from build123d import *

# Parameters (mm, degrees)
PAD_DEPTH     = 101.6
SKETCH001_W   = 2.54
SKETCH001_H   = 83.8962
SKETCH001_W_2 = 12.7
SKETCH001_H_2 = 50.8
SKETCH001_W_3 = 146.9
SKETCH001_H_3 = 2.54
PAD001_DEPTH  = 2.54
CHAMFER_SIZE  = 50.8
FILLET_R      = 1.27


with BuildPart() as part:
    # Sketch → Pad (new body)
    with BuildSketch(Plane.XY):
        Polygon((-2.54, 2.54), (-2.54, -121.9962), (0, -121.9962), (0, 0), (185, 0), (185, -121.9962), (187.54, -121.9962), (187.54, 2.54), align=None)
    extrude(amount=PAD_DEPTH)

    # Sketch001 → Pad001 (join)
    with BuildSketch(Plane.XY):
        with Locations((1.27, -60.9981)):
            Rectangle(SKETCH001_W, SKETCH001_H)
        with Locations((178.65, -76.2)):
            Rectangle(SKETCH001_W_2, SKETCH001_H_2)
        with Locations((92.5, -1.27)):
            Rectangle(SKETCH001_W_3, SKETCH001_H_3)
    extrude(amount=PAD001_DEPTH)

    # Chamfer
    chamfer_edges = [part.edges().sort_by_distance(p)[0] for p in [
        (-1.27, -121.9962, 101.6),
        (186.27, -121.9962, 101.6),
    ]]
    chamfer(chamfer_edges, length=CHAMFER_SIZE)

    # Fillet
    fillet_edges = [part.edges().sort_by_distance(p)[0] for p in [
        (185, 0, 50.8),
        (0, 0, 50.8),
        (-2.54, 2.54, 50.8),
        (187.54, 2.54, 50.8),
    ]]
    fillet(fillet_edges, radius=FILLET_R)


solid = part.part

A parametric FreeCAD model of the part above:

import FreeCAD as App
import Part
import Sketcher
Q = App.Units.Quantity


def edges_at(feature, points):
    """Names of the edges that pass closest to the given points."""
    edges = feature.Shape.Edges
    near = lambda p: min(range(len(edges)), key=lambda i: edges[i].distToShape(Part.Vertex(*p))[0])
    return sorted({f"Edge{near(p) + 1}" for p in points})

doc = App.newDocument("Part")
body = doc.addObject("PartDesign::Body", "Body")

# Sketch on XY plane
sketch1 = body.newObject("Sketcher::SketchObject", "Sketch")
sketch1.AttachmentSupport = (doc.getObject("XY_Plane"), [""])
sketch1.MapMode = "FlatFace"
sketch1.addGeometry([
    Part.LineSegment(App.Vector(-2.5, 2.5, 0), App.Vector(-2.5, -122, 0)),  # 0
    Part.LineSegment(App.Vector(-2.5, -122, 0), App.Vector(0, -122, 0)),  # 1
    Part.LineSegment(App.Vector(0, -122, 0), App.Vector(0, 0, 0)),  # 2
    Part.LineSegment(App.Vector(0, 0, 0), App.Vector(185, 0, 0)),  # 3
    Part.LineSegment(App.Vector(185, 0, 0), App.Vector(185, -122, 0)),  # 4
    Part.LineSegment(App.Vector(185, -122, 0), App.Vector(187.5, -122, 0)),  # 5
    Part.LineSegment(App.Vector(187.5, -122, 0), App.Vector(187.5, 2.5, 0)),  # 6
    Part.LineSegment(App.Vector(187.5, 2.5, 0), App.Vector(-2.5, 2.5, 0)),  # 7
], False)
sketch1.addConstraint([
    Sketcher.Constraint("Coincident", 0, 2, 1, 1),
    Sketcher.Constraint("Coincident", 1, 2, 2, 1),
    Sketcher.Constraint("Coincident", 2, 2, 3, 1),
    Sketcher.Constraint("Coincident", 3, 2, 4, 1),
    Sketcher.Constraint("Coincident", 4, 2, 5, 1),
    Sketcher.Constraint("Coincident", 5, 2, 6, 1),
    Sketcher.Constraint("Coincident", 6, 2, 7, 1),
    Sketcher.Constraint("Coincident", 7, 2, 0, 1),
    Sketcher.Constraint("Vertical", 0),
    Sketcher.Constraint("Horizontal", 1),
    Sketcher.Constraint("Vertical", 2),
    Sketcher.Constraint("Horizontal", 3),
    Sketcher.Constraint("Vertical", 4),
    Sketcher.Constraint("Horizontal", 5),
    Sketcher.Constraint("Vertical", 6),
    Sketcher.Constraint("Horizontal", 7),
    Sketcher.Constraint("Coincident", 2, 2, -1, 1),
    Sketcher.Constraint("Horizontal", 1, 2, 4, 2),
    Sketcher.Constraint("Equal", 1, 5),
    Sketcher.Constraint("DistanceX", 1, 1, 1, 2, Q("0.1 in")),
    Sketcher.Constraint("DistanceY", -1, 1, 6, 2, Q("0.1 in")),
    Sketcher.Constraint("DistanceY", 0, 2, 0, 1, Q("4.903 in")),
    Sketcher.Constraint("DistanceX", 3, 1, 3, 2, 185.0),
])
pad1 = body.newObject("PartDesign::Pad", "Pad")
pad1.Profile = sketch1
pad1.Length = Q("4 in")

# Sketch on XY plane
sketch2 = body.newObject("Sketcher::SketchObject", "Sketch001")
sketch2.AttachmentSupport = (doc.getObject("XY_Plane"), [""])
sketch2.MapMode = "FlatFace"
sketch2.addGeometry([
    Part.LineSegment(App.Vector(0, -19.1, 0), App.Vector(0, -102.9, 0)),  # 0
    Part.LineSegment(App.Vector(0, -102.9, 0), App.Vector(2.5, -102.9, 0)),  # 1
    Part.LineSegment(App.Vector(2.5, -102.9, 0), App.Vector(2.5, -19.1, 0)),  # 2
    Part.LineSegment(App.Vector(2.5, -19.1, 0), App.Vector(0, -19.1, 0)),  # 3
    Part.LineSegment(App.Vector(172.3, -50.8, 0), App.Vector(172.3, -101.6, 0)),  # 4
    Part.LineSegment(App.Vector(172.3, -101.6, 0), App.Vector(185, -101.6, 0)),  # 5
    Part.LineSegment(App.Vector(185, -101.6, 0), App.Vector(185, -50.8, 0)),  # 6
    Part.LineSegment(App.Vector(185, -50.8, 0), App.Vector(172.3, -50.8, 0)),  # 7
    Part.LineSegment(App.Vector(19.1, 0, 0), App.Vector(19.1, -2.5, 0)),  # 8
    Part.LineSegment(App.Vector(19.1, -2.5, 0), App.Vector(165.9, -2.5, 0)),  # 9
    Part.LineSegment(App.Vector(165.9, -2.5, 0), App.Vector(165.9, 0, 0)),  # 10
    Part.LineSegment(App.Vector(165.9, 0, 0), App.Vector(19.1, 0, 0)),  # 11
], False)
sketch2.addConstraint([
    Sketcher.Constraint("Coincident", 0, 2, 1, 1),
    Sketcher.Constraint("Coincident", 1, 2, 2, 1),
    Sketcher.Constraint("Coincident", 2, 2, 3, 1),
    Sketcher.Constraint("Coincident", 3, 2, 0, 1),
    Sketcher.Constraint("Coincident", 4, 2, 5, 1),
    Sketcher.Constraint("Coincident", 5, 2, 6, 1),
    Sketcher.Constraint("Coincident", 6, 2, 7, 1),
    Sketcher.Constraint("Coincident", 7, 2, 4, 1),
    Sketcher.Constraint("Coincident", 8, 2, 9, 1),
    Sketcher.Constraint("Coincident", 9, 2, 10, 1),
    Sketcher.Constraint("Coincident", 10, 2, 11, 1),
    Sketcher.Constraint("Coincident", 11, 2, 8, 1),
    Sketcher.Constraint("Vertical", 0),
    Sketcher.Constraint("Horizontal", 1),
    Sketcher.Constraint("Vertical", 2),
    Sketcher.Constraint("Horizontal", 3),
    Sketcher.Constraint("Vertical", 4),
    Sketcher.Constraint("Horizontal", 5),
    Sketcher.Constraint("Vertical", 6),
    Sketcher.Constraint("Horizontal", 7),
    Sketcher.Constraint("Vertical", 8),
    Sketcher.Constraint("Horizontal", 9),
    Sketcher.Constraint("Vertical", 10),
    Sketcher.Constraint("Horizontal", 11),
    Sketcher.Constraint("PointOnObject", 0, 2, -2),
    Sketcher.Constraint("PointOnObject", 10, 2, -1),
    Sketcher.Constraint("Equal", 3, 8),
    Sketcher.Constraint("DistanceY", 4, 2, 4, 1, Q("2 in")),
    Sketcher.Constraint("DistanceX", 1, 1, 1, 2, Q("0.1 in")),
    Sketcher.Constraint("DistanceX", 5, 1, 5, 2, Q("0.5 in")),
    Sketcher.Constraint("DistanceY", 4, 2, -1, 1, Q("4 in")),
    Sketcher.Constraint("DistanceY", 0, 2, 0, 1, Q("3.303 in")),
    Sketcher.Constraint("DistanceY", 2, 2, -1, 1, Q("0.75 in")),
    Sketcher.Constraint("DistanceX", -1, 1, 8, 2, Q("0.75 in")),
    Sketcher.Constraint("DistanceX", 9, 2, 7, 2, Q("0.25 in")),
    Sketcher.Constraint("DistanceX", 9, 1, 9, 2, 146.9),
])
pad2 = body.newObject("PartDesign::Pad", "Pad001")
pad2.Profile = sketch2
pad2.Length = Q("0.1 in")
doc.recompute()

chamfer = body.newObject("PartDesign::Chamfer", "Chamfer")
chamfer.Base = (pad2, edges_at(pad2, [(-1.27, -121.996, 101.6), (186.27, -121.996, 101.6)]))
chamfer.Size = Q("2 in")
doc.recompute()

fillet = body.newObject("PartDesign::Fillet", "Fillet")
fillet.Base = (chamfer, edges_at(chamfer, [
    (185, 0, 50.8),
    (0, 0, 50.8),
    (-2.54, 2.54, 50.8),
    (187.54, 2.54, 50.8),
]))
fillet.Radius = Q("0.05 in")

doc.recompute()
